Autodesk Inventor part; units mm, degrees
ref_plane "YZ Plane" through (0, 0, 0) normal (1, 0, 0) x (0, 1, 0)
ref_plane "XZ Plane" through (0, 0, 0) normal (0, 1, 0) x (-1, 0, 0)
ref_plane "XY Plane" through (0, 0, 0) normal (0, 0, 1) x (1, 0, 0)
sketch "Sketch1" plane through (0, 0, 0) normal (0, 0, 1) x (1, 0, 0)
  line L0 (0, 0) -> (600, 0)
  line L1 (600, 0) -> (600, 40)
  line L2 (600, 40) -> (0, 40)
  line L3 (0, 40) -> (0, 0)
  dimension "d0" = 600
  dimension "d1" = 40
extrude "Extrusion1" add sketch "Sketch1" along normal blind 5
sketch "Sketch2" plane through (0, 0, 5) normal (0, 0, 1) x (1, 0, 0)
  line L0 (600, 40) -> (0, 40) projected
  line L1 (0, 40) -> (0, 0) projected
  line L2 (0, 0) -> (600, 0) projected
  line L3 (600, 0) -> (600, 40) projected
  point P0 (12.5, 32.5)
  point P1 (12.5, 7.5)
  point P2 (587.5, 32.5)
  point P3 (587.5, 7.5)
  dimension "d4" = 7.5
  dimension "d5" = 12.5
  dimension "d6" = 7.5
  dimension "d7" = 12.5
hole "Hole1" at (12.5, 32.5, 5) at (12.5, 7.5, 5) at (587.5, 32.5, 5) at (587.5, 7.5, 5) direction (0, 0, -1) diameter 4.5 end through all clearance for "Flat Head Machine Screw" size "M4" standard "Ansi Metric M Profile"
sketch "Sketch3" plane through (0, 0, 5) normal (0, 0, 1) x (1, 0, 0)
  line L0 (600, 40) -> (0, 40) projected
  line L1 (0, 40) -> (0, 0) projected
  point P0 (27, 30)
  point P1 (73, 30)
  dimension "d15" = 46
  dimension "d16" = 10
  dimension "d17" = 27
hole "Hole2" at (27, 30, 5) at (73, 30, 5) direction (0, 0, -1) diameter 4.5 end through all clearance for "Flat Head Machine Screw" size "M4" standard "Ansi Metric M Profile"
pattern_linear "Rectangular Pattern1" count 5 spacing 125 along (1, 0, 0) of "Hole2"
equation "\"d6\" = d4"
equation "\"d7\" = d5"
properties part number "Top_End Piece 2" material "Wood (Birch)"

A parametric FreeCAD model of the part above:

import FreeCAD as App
import Part
import Sketcher

doc = App.newDocument("Part")
params = doc.addObject("Spreadsheet::Sheet", "Params")
for row, (alias, value) in enumerate([
    ("sketch1_width", "600 mm"),
    ("sketch1_height", "40 mm"),
    ("pad1_length", "5 mm"),
    ("sketch2_diameter", "4.5 mm"),
    ("hole_diameter", "4.5 mm"),
    ("sketch3_diameter", "4.5 mm"),
    ("hole2_diameter", "4.5 mm"),
    ("linearpattern_pitch", "125 mm"),
], start=1):
    params.set(f"A{row}", alias)
    params.set(f"B{row}", "=" + value)
    params.setAlias(f"B{row}", alias)

body = doc.addObject("PartDesign::Body", "Body")

# Sketch on XY plane
sketch1 = body.newObject("Sketcher::SketchObject", "Sketch")
sketch1.AttachmentSupport = (doc.getObject("XY_Plane"), [""])
sketch1.MapMode = "FlatFace"
sketch1.addGeometry(Part.LineSegment(App.Vector(0, 40, 0), App.Vector(0, 0, 0)), False)
sketch1.addGeometry(Part.LineSegment(App.Vector(0, 0, 0), App.Vector(600, 0, 0)), False)
sketch1.addGeometry(Part.LineSegment(App.Vector(600, 0, 0), App.Vector(600, 40, 0)), False)
sketch1.addGeometry(Part.LineSegment(App.Vector(600, 40, 0), App.Vector(0, 40, 0)), False)
sketch1.addConstraint(Sketcher.Constraint("Coincident", 0, 2, 1, 1))
sketch1.addConstraint(Sketcher.Constraint("Coincident", 1, 2, 2, 1))
sketch1.addConstraint(Sketcher.Constraint("Coincident", 2, 2, 3, 1))
sketch1.addConstraint(Sketcher.Constraint("Coincident", 3, 2, 0, 1))
sketch1.addConstraint(Sketcher.Constraint("Vertical", 0))
sketch1.addConstraint(Sketcher.Constraint("Horizontal", 1))
sketch1.addConstraint(Sketcher.Constraint("Vertical", 2))
sketch1.addConstraint(Sketcher.Constraint("Horizontal", 3))
sketch1.addConstraint(Sketcher.Constraint("Coincident", 0, 2, -1, 1))
sketch1.addConstraint(Sketcher.Constraint("DistanceX", 1, 1, 1, 2, 600.0))
sketch1.addConstraint(Sketcher.Constraint("DistanceY", 0, 2, 0, 1, 40.0))
sketch1.setExpression("Constraints[9]", "Params.sketch1_width")
sketch1.setExpression("Constraints[10]", "Params.sketch1_height")
pad1 = body.newObject("PartDesign::Pad", "Pad")
pad1.Profile = sketch1
pad1.setExpression("Length", "Params.pad1_length")

# Sketch on XY plane
sketch2 = body.newObject("Sketcher::SketchObject", "Sketch001")
sketch2.AttachmentSupport = (doc.getObject("XY_Plane"), [""])
sketch2.MapMode = "FlatFace"
sketch2.AttachmentOffset = App.Placement(App.Vector(0, 0, 5), App.Rotation())
sketch2.addGeometry(Part.Circle(App.Vector(12.5, 32.5, 0), App.Vector(0, 0, 1), 2.2), False)
sketch2.addGeometry(Part.Circle(App.Vector(12.5, 7.5, 0), App.Vector(0, 0, 1), 2.2), False)
sketch2.addGeometry(Part.Circle(App.Vector(587.5, 32.5, 0), App.Vector(0, 0, 1), 2.2), False)
sketch2.addGeometry(Part.Circle(App.Vector(587.5, 7.5, 0), App.Vector(0, 0, 1), 2.2), False)
sketch2.addConstraint(Sketcher.Constraint("Equal", 0, 1))
sketch2.addConstraint(Sketcher.Constraint("Equal", 1, 2))
sketch2.addConstraint(Sketcher.Constraint("Equal", 2, 3))
sketch2.addConstraint(Sketcher.Constraint("Horizontal", 0, 3, 2, 3))
sketch2.addConstraint(Sketcher.Constraint("Horizontal", 1, 3, 3, 3))
sketch2.addConstraint(Sketcher.Constraint("Vertical", 0, 3, 1, 3))
sketch2.addConstraint(Sketcher.Constraint("Vertical", 2, 3, 3, 3))
sketch2.addConstraint(Sketcher.Constraint("Diameter", 0, 4.5))
sketch2.addConstraint(Sketcher.Constraint("DistanceY", 1, 3, 0, 3, 25.0))
sketch2.addConstraint(Sketcher.Constraint("DistanceX", 0, 3, 2, 3, 575.0))
sketch2.addConstraint(Sketcher.Constraint("DistanceX", -1, 1, 0, 3, 12.5))
sketch2.addConstraint(Sketcher.Constraint("DistanceY", -1, 1, 0, 3, 32.5))
sketch2.setExpression("Constraints[7]", "Params.sketch2_diameter")
doc.recompute()
hole = body.newObject("PartDesign::Hole", "Hole")
hole.Profile = sketch2
hole.ThreadType = "None"
hole.setExpression("Diameter", "Params.hole_diameter")
hole.DepthType = "ThroughAll"

# Sketch on XY plane
sketch3 = body.newObject("Sketcher::SketchObject", "Sketch002")
sketch3.AttachmentSupport = (doc.getObject("XY_Plane"), [""])
sketch3.MapMode = "FlatFace"
sketch3.AttachmentOffset = App.Placement(App.Vector(0, 0, 5), App.Rotation())
sketch3.addGeometry(Part.Circle(App.Vector(27, 30, 0), App.Vector(0, 0, 1), 2.2), False)
sketch3.addGeometry(Part.Circle(App.Vector(73, 30, 0), App.Vector(0, 0, 1), 2.2), False)
sketch3.addConstraint(Sketcher.Constraint("Equal", 0, 1))
sketch3.addConstraint(Sketcher.Constraint("Horizontal", 0, 3, 1, 3))
sketch3.addConstraint(Sketcher.Constraint("Diameter", 0, 4.5))
sketch3.addConstraint(Sketcher.Constraint("DistanceX", -1, 1, 0, 3, 27.0))
sketch3.addConstraint(Sketcher.Constraint("DistanceY", -1, 1, 0, 3, 30.0))
sketch3.addConstraint(Sketcher.Constraint("DistanceX", -1, 1, 1, 3, 73.0))
sketch3.setExpression("Constraints[2]", "Params.sketch3_diameter")
doc.recompute()
hole2 = body.newObject("PartDesign::Hole", "Hole001")
hole2.Profile = sketch3
hole2.ThreadType = "None"
hole2.setExpression("Diameter", "Params.hole2_diameter")
hole2.DepthType = "ThroughAll"
doc.recompute()

linearpattern = body.newObject("PartDesign::LinearPattern", "LinearPattern")
linearpattern.Originals = [hole2]
linearpattern.Direction = (doc.getObject("X_Axis"), [""])
linearpattern.Mode = "offset"
linearpattern.setExpression("Offset", "Params.linearpattern_pitch")
linearpattern.Occurrences = 5
body.Tip = linearpattern

doc.recompute()
